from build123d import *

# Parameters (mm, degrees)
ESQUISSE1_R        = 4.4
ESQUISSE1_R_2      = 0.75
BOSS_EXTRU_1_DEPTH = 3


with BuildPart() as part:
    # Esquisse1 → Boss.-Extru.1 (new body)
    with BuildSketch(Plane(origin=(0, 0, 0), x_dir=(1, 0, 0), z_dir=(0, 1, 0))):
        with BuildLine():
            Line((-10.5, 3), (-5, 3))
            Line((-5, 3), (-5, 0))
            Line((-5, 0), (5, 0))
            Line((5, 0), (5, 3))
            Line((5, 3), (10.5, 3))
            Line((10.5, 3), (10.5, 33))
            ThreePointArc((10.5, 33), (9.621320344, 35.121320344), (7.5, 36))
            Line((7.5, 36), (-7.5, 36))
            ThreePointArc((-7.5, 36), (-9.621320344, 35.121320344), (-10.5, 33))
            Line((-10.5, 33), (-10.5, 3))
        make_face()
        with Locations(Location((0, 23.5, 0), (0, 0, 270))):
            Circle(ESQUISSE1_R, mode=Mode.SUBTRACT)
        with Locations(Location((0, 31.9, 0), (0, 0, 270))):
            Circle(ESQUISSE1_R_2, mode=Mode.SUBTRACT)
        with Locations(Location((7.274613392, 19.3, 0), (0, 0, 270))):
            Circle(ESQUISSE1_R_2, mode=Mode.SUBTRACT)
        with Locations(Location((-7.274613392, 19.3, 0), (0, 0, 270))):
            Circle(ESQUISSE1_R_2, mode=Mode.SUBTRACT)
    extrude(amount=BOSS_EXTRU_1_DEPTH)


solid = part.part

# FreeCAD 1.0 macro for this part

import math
import FreeCAD as App
import Part
import Sketcher
from FreeCAD import Vector

doc = App.newDocument("Part")
body = doc.addObject("PartDesign::Body", "Body")

# Sketch on XZ plane
sketch1 = body.newObject("Sketcher::SketchObject", "Sketch")
sketch1.AttachmentSupport = (doc.getObject("XZ_Plane"), [""])
sketch1.MapMode = "FlatFace"
sketch1.addGeometry([
    Part.LineSegment(Vector(-10.5, -3, 0), Vector(-5, -3, 0)),  # 0
    Part.LineSegment(Vector(-5, -3, 0), Vector(-5, 0, 0)),  # 1
    Part.LineSegment(Vector(-5, 0, 0), Vector(5, 0, 0)),  # 2
    Part.LineSegment(Vector(5, 0, 0), Vector(5, -3, 0)),  # 3
    Part.LineSegment(Vector(5, -3, 0), Vector(10.5, -3, 0)),  # 4
    Part.LineSegment(Vector(10.5, -3, 0), Vector(10.5, -33, 0)),  # 5
    Part.ArcOfCircle(Part.Circle(Vector(7.5, -33, 0), Vector(0, 0, 1), 3), math.radians(-90), math.radians(0)),  # 6
    Part.LineSegment(Vector(7.5, -36, 0), Vector(-7.5, -36, 0)),  # 7
    Part.ArcOfCircle(Part.Circle(Vector(-7.5, -33, 0), Vector(0, 0, 1), 3), math.radians(180), math.radians(270)),  # 8
    Part.LineSegment(Vector(-10.5, -33, 0), Vector(-10.5, -3, 0)),  # 9
    Part.Circle(Vector(-7.3, -19.3, 0), Vector(0, 0, 1), 0.8),  # 10
    Part.Circle(Vector(7.3, -19.3, 0), Vector(0, 0, 1), 0.8),  # 11
    Part.Circle(Vector(0, -23.5, 0), Vector(0, 0, 1), 4.4),  # 12
    Part.Circle(Vector(0, -31.9, 0), Vector(0, 0, 1), 0.8),  # 13
], False)
sketch1.addConstraint([
    Sketcher.Constraint("Coincident", 0, 2, 1, 1),
    Sketcher.Constraint("Coincident", 1, 2, 2, 1),
    Sketcher.Constraint("Coincident", 2, 2, 3, 1),
    Sketcher.Constraint("Coincident", 3, 2, 4, 1),
    Sketcher.Constraint("Coincident", 4, 2, 5, 1),
    Sketcher.Constraint("Tangent", 5, 2, 6, 2),
    Sketcher.Constraint("Tangent", 6, 1, 7, 1),
    Sketcher.Constraint("Tangent", 7, 2, 8, 2),
    Sketcher.Constraint("Tangent", 8, 1, 9, 1),
    Sketcher.Constraint("Coincident", 9, 2, 0, 1),
    Sketcher.Constraint("Horizontal", 0),
    Sketcher.Constraint("Vertical", 1),
    Sketcher.Constraint("Horizontal", 2),
    Sketcher.Constraint("Vertical", 3),
    Sketcher.Constraint("Horizontal", 4),
    Sketcher.Constraint("Vertical", 5),
    Sketcher.Constraint("Horizontal", 7),
    Sketcher.Constraint("Vertical", 9),
    Sketcher.Constraint("Equal", 6, 8),
    Sketcher.Constraint("Equal", 10, 11),
    Sketcher.Constraint("Equal", 11, 13),
    Sketcher.Constraint("Symmetric", 1, 2, 2, 2, -1, 1),
    Sketcher.Constraint("Symmetric", 10, 3, 11, 3, -2),
    Sketcher.Constraint("Symmetric", 4, 2, 9, 2, -2),
    Sketcher.Constraint("PointOnObject", 12, 3, -2),
    Sketcher.Constraint("PointOnObject", 13, 3, -2),
    Sketcher.Constraint("Radius", 6, 3.0),
    Sketcher.Constraint("Diameter", 10, 1.5),
    Sketcher.Constraint("Diameter", 12, 8.8),
    Sketcher.Constraint("DistanceX", 2, 1, 2, 2, 10.0),
    Sketcher.Constraint("DistanceX", 7, 2, 7, 1, 15.0),
    Sketcher.Constraint("DistanceY", 1, 1, 1, 2, 3.0),
    Sketcher.Constraint("DistanceY", 5, 2, 5, 1, 30.0),
    Sketcher.Constraint("DistanceY", 10, 3, -1, 1, 19.3),
    Sketcher.Constraint("DistanceY", 12, 3, -1, 1, 23.5),
    Sketcher.Constraint("DistanceY", 13, 3, -1, 1, 31.9),
    Sketcher.Constraint("DistanceX", 10, 3, -1, 1, 7.274613),
])
pad1 = body.newObject("PartDesign::Pad", "Pad")
pad1.Profile = sketch1
pad1.Length = 3
pad1.Reversed = True

doc.recompute()
